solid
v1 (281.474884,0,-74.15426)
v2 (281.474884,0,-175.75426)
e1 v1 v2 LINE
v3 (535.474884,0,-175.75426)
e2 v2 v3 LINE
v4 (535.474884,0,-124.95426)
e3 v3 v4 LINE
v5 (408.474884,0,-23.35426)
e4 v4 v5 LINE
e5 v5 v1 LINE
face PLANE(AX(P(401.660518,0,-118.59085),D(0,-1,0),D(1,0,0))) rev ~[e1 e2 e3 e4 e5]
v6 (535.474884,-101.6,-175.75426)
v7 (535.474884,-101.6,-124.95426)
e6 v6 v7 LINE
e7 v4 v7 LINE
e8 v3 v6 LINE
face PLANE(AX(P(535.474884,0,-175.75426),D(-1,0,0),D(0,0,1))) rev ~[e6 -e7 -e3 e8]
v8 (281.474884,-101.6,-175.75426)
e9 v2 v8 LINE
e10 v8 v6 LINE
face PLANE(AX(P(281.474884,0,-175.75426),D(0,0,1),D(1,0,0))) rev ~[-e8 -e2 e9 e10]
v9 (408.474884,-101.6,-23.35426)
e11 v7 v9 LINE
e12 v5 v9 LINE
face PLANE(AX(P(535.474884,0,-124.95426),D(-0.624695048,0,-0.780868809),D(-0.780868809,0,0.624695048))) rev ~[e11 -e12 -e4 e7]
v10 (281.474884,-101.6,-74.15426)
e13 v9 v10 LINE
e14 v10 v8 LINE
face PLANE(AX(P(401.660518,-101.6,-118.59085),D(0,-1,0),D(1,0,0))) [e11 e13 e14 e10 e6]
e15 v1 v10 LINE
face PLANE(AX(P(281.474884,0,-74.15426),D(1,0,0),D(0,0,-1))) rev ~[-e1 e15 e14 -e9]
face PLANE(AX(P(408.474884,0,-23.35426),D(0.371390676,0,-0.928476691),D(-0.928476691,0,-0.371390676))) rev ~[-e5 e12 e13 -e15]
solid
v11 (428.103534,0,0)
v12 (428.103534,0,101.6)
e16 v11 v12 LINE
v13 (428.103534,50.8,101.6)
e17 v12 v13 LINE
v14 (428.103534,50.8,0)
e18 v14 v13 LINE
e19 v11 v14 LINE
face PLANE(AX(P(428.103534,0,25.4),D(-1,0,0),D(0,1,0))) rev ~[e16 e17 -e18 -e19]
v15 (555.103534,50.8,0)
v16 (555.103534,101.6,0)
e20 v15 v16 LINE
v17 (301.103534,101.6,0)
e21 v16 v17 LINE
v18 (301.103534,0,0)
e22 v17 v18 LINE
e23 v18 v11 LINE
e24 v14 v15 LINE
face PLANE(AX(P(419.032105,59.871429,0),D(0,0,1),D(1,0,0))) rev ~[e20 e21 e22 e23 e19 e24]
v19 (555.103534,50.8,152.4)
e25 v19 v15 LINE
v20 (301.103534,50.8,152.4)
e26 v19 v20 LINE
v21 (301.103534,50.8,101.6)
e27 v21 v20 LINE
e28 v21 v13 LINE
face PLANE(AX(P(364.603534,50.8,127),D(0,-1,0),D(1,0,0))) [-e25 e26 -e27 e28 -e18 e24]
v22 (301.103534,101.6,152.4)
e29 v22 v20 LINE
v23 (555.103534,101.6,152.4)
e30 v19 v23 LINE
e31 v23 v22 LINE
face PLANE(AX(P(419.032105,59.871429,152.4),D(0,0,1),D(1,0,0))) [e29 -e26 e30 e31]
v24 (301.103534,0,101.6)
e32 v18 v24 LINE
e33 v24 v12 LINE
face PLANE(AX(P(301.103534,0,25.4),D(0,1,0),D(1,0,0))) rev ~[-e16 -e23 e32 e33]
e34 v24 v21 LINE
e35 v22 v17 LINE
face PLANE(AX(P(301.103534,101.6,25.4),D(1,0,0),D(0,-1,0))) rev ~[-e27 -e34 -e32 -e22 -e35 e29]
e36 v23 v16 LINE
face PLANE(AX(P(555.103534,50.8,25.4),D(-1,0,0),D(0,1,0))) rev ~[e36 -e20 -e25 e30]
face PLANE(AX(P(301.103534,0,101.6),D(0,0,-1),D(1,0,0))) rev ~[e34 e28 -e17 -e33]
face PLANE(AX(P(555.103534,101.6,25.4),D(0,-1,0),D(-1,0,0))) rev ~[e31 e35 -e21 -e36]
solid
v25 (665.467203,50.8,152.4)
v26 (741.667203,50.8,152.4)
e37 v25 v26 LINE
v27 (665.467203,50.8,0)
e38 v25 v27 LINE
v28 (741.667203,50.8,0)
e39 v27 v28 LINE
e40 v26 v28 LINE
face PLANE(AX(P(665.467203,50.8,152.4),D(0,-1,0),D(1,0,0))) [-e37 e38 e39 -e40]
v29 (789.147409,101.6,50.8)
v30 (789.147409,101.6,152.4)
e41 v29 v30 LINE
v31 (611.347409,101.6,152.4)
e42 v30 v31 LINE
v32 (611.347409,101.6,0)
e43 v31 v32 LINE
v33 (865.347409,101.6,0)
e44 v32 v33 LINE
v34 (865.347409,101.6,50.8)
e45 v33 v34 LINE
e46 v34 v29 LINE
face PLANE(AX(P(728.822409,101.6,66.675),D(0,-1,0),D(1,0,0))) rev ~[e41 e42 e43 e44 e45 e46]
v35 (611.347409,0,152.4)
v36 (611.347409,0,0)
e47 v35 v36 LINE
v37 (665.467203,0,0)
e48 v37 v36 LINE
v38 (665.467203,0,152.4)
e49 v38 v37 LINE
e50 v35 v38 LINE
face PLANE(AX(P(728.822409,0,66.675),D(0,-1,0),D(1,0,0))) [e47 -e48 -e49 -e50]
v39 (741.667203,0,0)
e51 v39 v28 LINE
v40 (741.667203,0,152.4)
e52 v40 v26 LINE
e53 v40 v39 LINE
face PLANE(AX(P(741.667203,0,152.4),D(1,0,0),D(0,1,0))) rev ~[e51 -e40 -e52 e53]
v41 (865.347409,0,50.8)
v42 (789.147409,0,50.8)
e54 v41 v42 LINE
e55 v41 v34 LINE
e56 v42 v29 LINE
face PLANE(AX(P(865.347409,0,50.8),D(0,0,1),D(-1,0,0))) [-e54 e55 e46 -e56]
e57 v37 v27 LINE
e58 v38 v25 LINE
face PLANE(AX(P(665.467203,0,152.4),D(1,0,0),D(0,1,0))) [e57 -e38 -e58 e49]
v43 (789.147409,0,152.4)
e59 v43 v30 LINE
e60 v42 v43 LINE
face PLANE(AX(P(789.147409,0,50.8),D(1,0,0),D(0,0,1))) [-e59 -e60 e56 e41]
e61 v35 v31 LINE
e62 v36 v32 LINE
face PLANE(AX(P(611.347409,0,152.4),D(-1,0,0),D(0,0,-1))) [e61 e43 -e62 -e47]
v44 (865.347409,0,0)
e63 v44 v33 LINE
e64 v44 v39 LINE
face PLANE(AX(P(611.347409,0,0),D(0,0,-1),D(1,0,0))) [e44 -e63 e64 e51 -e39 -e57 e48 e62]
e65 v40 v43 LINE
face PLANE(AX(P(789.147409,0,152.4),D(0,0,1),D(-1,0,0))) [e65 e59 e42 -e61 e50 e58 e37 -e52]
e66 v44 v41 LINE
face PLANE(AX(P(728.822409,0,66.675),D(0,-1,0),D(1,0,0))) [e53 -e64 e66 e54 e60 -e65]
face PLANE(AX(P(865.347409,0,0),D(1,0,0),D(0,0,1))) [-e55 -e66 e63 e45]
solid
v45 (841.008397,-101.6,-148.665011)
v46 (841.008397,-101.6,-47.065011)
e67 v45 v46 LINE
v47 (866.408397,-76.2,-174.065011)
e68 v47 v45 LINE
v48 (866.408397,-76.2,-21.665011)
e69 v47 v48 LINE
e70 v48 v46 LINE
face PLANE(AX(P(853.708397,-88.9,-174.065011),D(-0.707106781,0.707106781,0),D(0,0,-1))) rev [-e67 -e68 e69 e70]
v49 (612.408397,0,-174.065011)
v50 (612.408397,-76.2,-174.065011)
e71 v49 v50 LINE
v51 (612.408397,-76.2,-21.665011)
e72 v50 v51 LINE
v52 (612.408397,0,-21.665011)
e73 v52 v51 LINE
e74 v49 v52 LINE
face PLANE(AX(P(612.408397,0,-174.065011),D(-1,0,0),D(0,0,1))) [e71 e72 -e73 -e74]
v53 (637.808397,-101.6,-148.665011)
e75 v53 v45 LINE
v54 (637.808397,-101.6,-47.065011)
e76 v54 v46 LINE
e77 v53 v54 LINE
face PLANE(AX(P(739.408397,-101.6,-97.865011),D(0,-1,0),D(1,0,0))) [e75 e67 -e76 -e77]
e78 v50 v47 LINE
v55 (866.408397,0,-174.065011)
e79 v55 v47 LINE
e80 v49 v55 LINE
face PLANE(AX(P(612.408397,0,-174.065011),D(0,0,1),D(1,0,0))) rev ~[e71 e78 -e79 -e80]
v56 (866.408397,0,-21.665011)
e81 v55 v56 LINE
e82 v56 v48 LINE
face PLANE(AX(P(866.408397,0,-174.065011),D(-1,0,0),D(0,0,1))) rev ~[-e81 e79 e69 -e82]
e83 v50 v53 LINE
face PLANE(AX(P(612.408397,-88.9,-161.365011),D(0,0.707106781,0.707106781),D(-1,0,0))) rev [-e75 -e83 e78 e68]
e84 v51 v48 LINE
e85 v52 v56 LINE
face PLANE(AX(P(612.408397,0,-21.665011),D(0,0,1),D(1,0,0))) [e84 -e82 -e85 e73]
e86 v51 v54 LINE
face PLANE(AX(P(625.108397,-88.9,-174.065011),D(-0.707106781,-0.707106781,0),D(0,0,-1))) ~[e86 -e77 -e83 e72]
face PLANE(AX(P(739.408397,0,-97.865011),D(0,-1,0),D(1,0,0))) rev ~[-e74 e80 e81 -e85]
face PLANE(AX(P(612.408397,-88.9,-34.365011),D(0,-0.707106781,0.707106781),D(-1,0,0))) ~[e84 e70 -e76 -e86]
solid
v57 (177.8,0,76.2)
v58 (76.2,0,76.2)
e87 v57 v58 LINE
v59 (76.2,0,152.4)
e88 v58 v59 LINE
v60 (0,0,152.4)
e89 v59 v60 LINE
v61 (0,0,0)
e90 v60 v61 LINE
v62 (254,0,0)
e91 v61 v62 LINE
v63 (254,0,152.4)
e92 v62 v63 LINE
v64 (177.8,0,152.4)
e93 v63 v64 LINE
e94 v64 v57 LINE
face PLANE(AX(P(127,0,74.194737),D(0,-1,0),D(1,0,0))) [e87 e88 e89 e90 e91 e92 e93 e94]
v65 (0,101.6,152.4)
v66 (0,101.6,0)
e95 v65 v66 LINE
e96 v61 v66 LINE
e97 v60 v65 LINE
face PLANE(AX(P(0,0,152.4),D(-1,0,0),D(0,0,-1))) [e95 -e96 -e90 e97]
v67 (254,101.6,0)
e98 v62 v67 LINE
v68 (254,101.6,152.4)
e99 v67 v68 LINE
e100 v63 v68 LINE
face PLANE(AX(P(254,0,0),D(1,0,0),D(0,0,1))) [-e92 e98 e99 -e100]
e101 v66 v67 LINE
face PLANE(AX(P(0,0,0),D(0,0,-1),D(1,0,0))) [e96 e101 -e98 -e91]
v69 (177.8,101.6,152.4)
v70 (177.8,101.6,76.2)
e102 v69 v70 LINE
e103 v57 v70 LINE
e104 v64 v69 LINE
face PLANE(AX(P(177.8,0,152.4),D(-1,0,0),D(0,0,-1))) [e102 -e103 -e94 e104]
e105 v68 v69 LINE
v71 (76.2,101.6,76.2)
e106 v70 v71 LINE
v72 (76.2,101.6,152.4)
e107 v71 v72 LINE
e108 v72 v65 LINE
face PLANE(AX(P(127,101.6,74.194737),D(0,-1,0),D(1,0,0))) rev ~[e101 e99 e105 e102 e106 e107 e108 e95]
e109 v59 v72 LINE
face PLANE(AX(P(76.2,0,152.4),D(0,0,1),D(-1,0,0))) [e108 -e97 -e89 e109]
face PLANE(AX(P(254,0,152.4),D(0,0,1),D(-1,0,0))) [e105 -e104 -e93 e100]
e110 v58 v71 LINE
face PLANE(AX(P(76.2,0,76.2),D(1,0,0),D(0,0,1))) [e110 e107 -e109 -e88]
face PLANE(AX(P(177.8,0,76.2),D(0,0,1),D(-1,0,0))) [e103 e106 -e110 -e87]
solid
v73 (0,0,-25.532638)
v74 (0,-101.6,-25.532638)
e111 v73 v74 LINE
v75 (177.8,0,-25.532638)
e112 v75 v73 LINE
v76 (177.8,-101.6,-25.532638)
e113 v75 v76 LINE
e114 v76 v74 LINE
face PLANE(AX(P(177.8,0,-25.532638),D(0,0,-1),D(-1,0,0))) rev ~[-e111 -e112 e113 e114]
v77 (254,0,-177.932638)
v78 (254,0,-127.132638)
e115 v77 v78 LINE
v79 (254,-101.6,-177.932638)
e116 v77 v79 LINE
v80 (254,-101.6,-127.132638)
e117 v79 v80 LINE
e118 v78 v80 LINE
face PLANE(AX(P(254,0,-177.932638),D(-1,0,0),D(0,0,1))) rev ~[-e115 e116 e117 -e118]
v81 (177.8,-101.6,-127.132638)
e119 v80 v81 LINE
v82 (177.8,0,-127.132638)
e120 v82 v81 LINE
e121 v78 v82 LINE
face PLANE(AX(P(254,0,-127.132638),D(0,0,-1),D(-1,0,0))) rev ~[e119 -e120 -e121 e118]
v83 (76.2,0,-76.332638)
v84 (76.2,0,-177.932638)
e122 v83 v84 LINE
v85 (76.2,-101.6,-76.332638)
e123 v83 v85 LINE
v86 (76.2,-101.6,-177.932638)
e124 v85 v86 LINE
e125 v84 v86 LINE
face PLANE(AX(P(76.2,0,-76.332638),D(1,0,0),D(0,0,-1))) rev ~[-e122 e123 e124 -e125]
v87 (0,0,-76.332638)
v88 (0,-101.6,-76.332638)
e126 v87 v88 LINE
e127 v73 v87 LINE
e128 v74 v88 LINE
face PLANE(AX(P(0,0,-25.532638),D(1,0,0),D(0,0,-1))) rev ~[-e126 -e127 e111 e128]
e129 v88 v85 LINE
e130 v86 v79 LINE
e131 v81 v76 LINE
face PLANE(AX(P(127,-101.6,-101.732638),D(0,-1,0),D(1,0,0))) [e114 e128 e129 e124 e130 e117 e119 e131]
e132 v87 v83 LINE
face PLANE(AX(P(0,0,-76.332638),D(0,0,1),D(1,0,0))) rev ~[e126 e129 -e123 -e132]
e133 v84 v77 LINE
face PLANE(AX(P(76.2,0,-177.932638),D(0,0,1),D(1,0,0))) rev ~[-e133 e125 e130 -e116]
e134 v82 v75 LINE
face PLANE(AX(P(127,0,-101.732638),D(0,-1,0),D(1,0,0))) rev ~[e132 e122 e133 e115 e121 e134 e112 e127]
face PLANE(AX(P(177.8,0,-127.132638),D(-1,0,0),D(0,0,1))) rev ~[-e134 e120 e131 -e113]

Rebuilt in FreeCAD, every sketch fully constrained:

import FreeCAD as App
import Part
import Sketcher
Q = App.Units.Quantity


def edges_at(feature, points):
    """Names of the edges that pass closest to the given points."""
    edges = feature.Shape.Edges
    near = lambda p: min(range(len(edges)), key=lambda i: edges[i].distToShape(Part.Vertex(*p))[0])
    return sorted({f"Edge{near(p) + 1}" for p in points})


def add_polygon(sketch, points):
    """Adds a closed chain of lines whose ends are joined by coincident constraints."""
    first, n = sketch.GeometryCount, len(points)
    for a, b in zip(points, points[1:] + points[:1]):
        sketch.addGeometry(Part.LineSegment(App.Vector(*a, 0), App.Vector(*b, 0)), False)
    for i in range(n):
        sketch.addConstraint(Sketcher.Constraint("Coincident", first + i, 2, first + (i + 1) % n, 1))

doc = App.newDocument("Part")
body = doc.addObject("PartDesign::Body", "Body")

# Sketch on XZ plane
sketch1 = body.newObject("Sketcher::SketchObject", "Sketch")
sketch1.AttachmentSupport = (doc.getObject("XZ_Plane"), [""])
sketch1.MapMode = "FlatFace"
add_polygon(sketch1, [(0, 152), (0, 0), (254, 0), (254, 152), (178, 152), (178, 76), (76, 76), (76, 152)])  # lines 0-7
sketch1.addConstraint(Sketcher.Constraint("Vertical", 0))
sketch1.addConstraint(Sketcher.Constraint("Horizontal", 1))
sketch1.addConstraint(Sketcher.Constraint("Vertical", 2))
sketch1.addConstraint(Sketcher.Constraint("Horizontal", 3))
sketch1.addConstraint(Sketcher.Constraint("Vertical", 4))
sketch1.addConstraint(Sketcher.Constraint("Horizontal", 5))
sketch1.addConstraint(Sketcher.Constraint("Vertical", 6))
sketch1.addConstraint(Sketcher.Constraint("Horizontal", 7))
sketch1.addConstraint(Sketcher.Constraint("Coincident", 0, 2, -1, 1))
sketch1.addConstraint(Sketcher.Constraint("Horizontal", 3, 2, 6, 2))
sketch1.addConstraint(Sketcher.Constraint("Equal", 3, 7))
sketch1.addConstraint(Sketcher.Constraint("Equal", 7, 4))
sketch1.addConstraint(Sketcher.Constraint("DistanceX", 1, 1, 1, 2, Q("10 in")))
sketch1.addConstraint(Sketcher.Constraint("DistanceX", 3, 2, 3, 1, Q("3 in")))
sketch1.addConstraint(Sketcher.Constraint("DistanceY", 0, 2, 0, 1, Q("6 in")))
pad1 = body.newObject("PartDesign::Pad", "Pad")
pad1.Profile = sketch1
pad1.Length = Q("4 in")
pad1.Reversed = True
body2 = doc.addObject("PartDesign::Body", "Body001")

# Sketch on XY plane
sketch2 = body2.newObject("Sketcher::SketchObject", "Sketch001")
sketch2.AttachmentSupport = (doc.getObject("XY_Plane001"), [""])
sketch2.MapMode = "FlatFace"
add_polygon(sketch2, [(301, 102), (301, 0), (428, 0), (428, 51), (555, 51), (555, 102)])  # lines 0-5
sketch2.addConstraint(Sketcher.Constraint("Vertical", 0))
sketch2.addConstraint(Sketcher.Constraint("Horizontal", 1))
sketch2.addConstraint(Sketcher.Constraint("Vertical", 2))
sketch2.addConstraint(Sketcher.Constraint("Horizontal", 3))
sketch2.addConstraint(Sketcher.Constraint("Vertical", 4))
sketch2.addConstraint(Sketcher.Constraint("Horizontal", 5))
sketch2.addConstraint(Sketcher.Constraint("PointOnObject", 0, 2, -1))
sketch2.addConstraint(Sketcher.Constraint("Equal", 1, 3))
sketch2.addConstraint(Sketcher.Constraint("Equal", 2, 4))
sketch2.addConstraint(Sketcher.Constraint("DistanceX", 1, 1, 1, 2, Q("5 in")))
sketch2.addConstraint(Sketcher.Constraint("DistanceY", 0, 2, 0, 1, Q("4 in")))
sketch2.addConstraint(Sketcher.Constraint("DistanceX", -1, 1, 0, 2, Q("301.103534 mm")))
pad2 = body2.newObject("PartDesign::Pad", "Pad001")
pad2.Profile = sketch2
pad2.Length = Q("1 in")

# Sketch on XY plane
sketch3 = body2.newObject("Sketcher::SketchObject", "Sketch002")
sketch3.AttachmentSupport = (doc.getObject("XY_Plane001"), [""])
sketch3.MapMode = "FlatFace"
sketch3.AttachmentOffset = App.Placement(App.Vector(0, 0, 1 * 25.4), App.Rotation())
add_polygon(sketch3, [(301, 102), (301, 0), (428, 0), (428, 51), (555, 51), (555, 102)])  # lines 0-5
sketch3.addConstraint(Sketcher.Constraint("Vertical", 0))
sketch3.addConstraint(Sketcher.Constraint("Horizontal", 1))
sketch3.addConstraint(Sketcher.Constraint("Vertical", 2))
sketch3.addConstraint(Sketcher.Constraint("Horizontal", 3))
sketch3.addConstraint(Sketcher.Constraint("Vertical", 4))
sketch3.addConstraint(Sketcher.Constraint("Horizontal", 5))
sketch3.addConstraint(Sketcher.Constraint("PointOnObject", 0, 2, -1))
sketch3.addConstraint(Sketcher.Constraint("Equal", 1, 3))
sketch3.addConstraint(Sketcher.Constraint("Equal", 2, 4))
sketch3.addConstraint(Sketcher.Constraint("DistanceX", 1, 1, 1, 2, Q("5 in")))
sketch3.addConstraint(Sketcher.Constraint("DistanceY", 0, 2, 0, 1, Q("4 in")))
sketch3.addConstraint(Sketcher.Constraint("DistanceX", -1, 1, 0, 2, Q("301.103534 mm")))
pad3 = body2.newObject("PartDesign::Pad", "Pad002")
pad3.Profile = sketch3
pad3.Length = Q("5 in")

# Sketch on XZ plane
sketch4 = body2.newObject("Sketcher::SketchObject", "Sketch003")
sketch4.AttachmentSupport = (doc.getObject("XZ_Plane001"), [""])
sketch4.MapMode = "FlatFace"
add_polygon(sketch4, [(301, 152), (301, 102), (428, 102), (428, 152)])  # lines 0-3
sketch4.addConstraint(Sketcher.Constraint("Vertical", 0))
sketch4.addConstraint(Sketcher.Constraint("Horizontal", 1))
sketch4.addConstraint(Sketcher.Constraint("Vertical", 2))
sketch4.addConstraint(Sketcher.Constraint("Horizontal", 3))
sketch4.addConstraint(Sketcher.Constraint("DistanceX", 1, 1, 1, 2, Q("5 in")))
sketch4.addConstraint(Sketcher.Constraint("DistanceY", 0, 2, 0, 1, Q("2 in")))
sketch4.addConstraint(Sketcher.Constraint("DistanceY", -1, 1, 0, 2, Q("4 in")))
sketch4.addConstraint(Sketcher.Constraint("DistanceX", -1, 1, 0, 2, Q("301.103534 mm")))
pocket1 = body2.newObject("PartDesign::Pocket", "Pocket")
pocket1.Profile = sketch4
pocket1.Length = Q("2 in")
body3 = doc.addObject("PartDesign::Body", "Body002")

# Sketch on XZ plane
sketch5 = body3.newObject("Sketcher::SketchObject", "Sketch004")
sketch5.AttachmentSupport = (doc.getObject("XZ_Plane002"), [""])
sketch5.MapMode = "FlatFace"
add_polygon(sketch5, [(611, 152), (611, 0), (865, 0), (865, 51), (789, 51), (789, 152)])  # lines 0-5
sketch5.addConstraint(Sketcher.Constraint("Vertical", 0))
sketch5.addConstraint(Sketcher.Constraint("Horizontal", 1))
sketch5.addConstraint(Sketcher.Constraint("Vertical", 2))
sketch5.addConstraint(Sketcher.Constraint("Horizontal", 3))
sketch5.addConstraint(Sketcher.Constraint("Vertical", 4))
sketch5.addConstraint(Sketcher.Constraint("Horizontal", 5))
sketch5.addConstraint(Sketcher.Constraint("PointOnObject", 0, 2, -1))
sketch5.addConstraint(Sketcher.Constraint("DistanceX", 1, 1, 1, 2, Q("10 in")))
sketch5.addConstraint(Sketcher.Constraint("DistanceX", 3, 2, 3, 1, Q("3 in")))
sketch5.addConstraint(Sketcher.Constraint("DistanceY", 0, 2, 0, 1, Q("6 in")))
sketch5.addConstraint(Sketcher.Constraint("DistanceY", 2, 1, 2, 2, Q("2 in")))
sketch5.addConstraint(Sketcher.Constraint("DistanceX", -1, 1, 0, 2, Q("611.347409 mm")))
pad4 = body3.newObject("PartDesign::Pad", "Pad003")
pad4.Profile = sketch5
pad4.Length = Q("4 in")
pad4.Reversed = True

# Sketch on XY plane
sketch6 = body3.newObject("Sketcher::SketchObject", "Sketch005")
sketch6.AttachmentSupport = (doc.getObject("XY_Plane002"), [""])
sketch6.MapMode = "FlatFace"
sketch6.AttachmentOffset = App.Placement(App.Vector(0, 0, 6 * 25.4), App.Rotation())
add_polygon(sketch6, [(662, 51), (662, 0), (738, 0), (738, 51)])  # lines 0-3
sketch6.addConstraint(Sketcher.Constraint("Vertical", 0))
sketch6.addConstraint(Sketcher.Constraint("Horizontal", 1))
sketch6.addConstraint(Sketcher.Constraint("Vertical", 2))
sketch6.addConstraint(Sketcher.Constraint("Horizontal", 3))
sketch6.addConstraint(Sketcher.Constraint("PointOnObject", 0, 2, -1))
sketch6.addConstraint(Sketcher.Constraint("DistanceX", 1, 1, 1, 2, Q("3 in")))
sketch6.addConstraint(Sketcher.Constraint("DistanceY", 0, 2, 0, 1, Q("2 in")))
sketch6.addConstraint(Sketcher.Constraint("DistanceX", -1, 1, 0, 2, Q("662.147409 mm")))
pad5 = body3.newObject("PartDesign::Pad", "Pad004")
pad5.Profile = sketch6
pad5.Length = Q("6 in")
pad5.Reversed = True

# Sketch on XY plane
sketch7 = body3.newObject("Sketcher::SketchObject", "Sketch006")
sketch7.AttachmentSupport = (doc.getObject("XY_Plane002"), [""])
sketch7.MapMode = "FlatFace"
sketch7.AttachmentOffset = App.Placement(App.Vector(0, 0, 6 * 25.4), App.Rotation())
add_polygon(sketch7, [(665, 51), (665, 0), (742, 0), (742, 51)])  # lines 0-3
sketch7.addConstraint(Sketcher.Constraint("Vertical", 0))
sketch7.addConstraint(Sketcher.Constraint("Horizontal", 1))
sketch7.addConstraint(Sketcher.Constraint("Vertical", 2))
sketch7.addConstraint(Sketcher.Constraint("Horizontal", 3))
sketch7.addConstraint(Sketcher.Constraint("PointOnObject", 0, 2, -1))
sketch7.addConstraint(Sketcher.Constraint("DistanceX", 1, 1, 1, 2, Q("3 in")))
sketch7.addConstraint(Sketcher.Constraint("DistanceY", 0, 2, 0, 1, Q("2 in")))
sketch7.addConstraint(Sketcher.Constraint("DistanceX", -1, 1, 0, 2, Q("665.467203 mm")))
pocket2 = body3.newObject("PartDesign::Pocket", "Pocket001")
pocket2.Profile = sketch7
pocket2.Length = Q("6 in")
body4 = doc.addObject("PartDesign::Body", "Body003")

# Sketch on XZ plane
sketch8 = body4.newObject("Sketcher::SketchObject", "Sketch007")
sketch8.AttachmentSupport = (doc.getObject("XZ_Plane003"), [""])
sketch8.MapMode = "FlatFace"
add_polygon(sketch8, [(178, -26), (0, -26), (0, -76), (76, -76), (76, -178), (254, -178), (254, -127), (178, -127)])  # lines 0-7
sketch8.addConstraint(Sketcher.Constraint("Horizontal", 0))
sketch8.addConstraint(Sketcher.Constraint("Vertical", 1))
sketch8.addConstraint(Sketcher.Constraint("Horizontal", 2))
sketch8.addConstraint(Sketcher.Constraint("Vertical", 3))
sketch8.addConstraint(Sketcher.Constraint("Horizontal", 4))
sketch8.addConstraint(Sketcher.Constraint("Vertical", 5))
sketch8.addConstraint(Sketcher.Constraint("Horizontal", 6))
sketch8.addConstraint(Sketcher.Constraint("Vertical", 7))
sketch8.addConstraint(Sketcher.Constraint("PointOnObject", 0, 2, -2))
sketch8.addConstraint(Sketcher.Constraint("Equal", 0, 4))
sketch8.addConstraint(Sketcher.Constraint("Equal", 1, 5))
sketch8.addConstraint(Sketcher.Constraint("DistanceX", 0, 2, 0, 1, Q("7 in")))
sketch8.addConstraint(Sketcher.Constraint("DistanceX", 2, 1, 2, 2, Q("3 in")))
sketch8.addConstraint(Sketcher.Constraint("DistanceY", 1, 2, 1, 1, Q("2 in")))
sketch8.addConstraint(Sketcher.Constraint("DistanceY", 3, 2, 3, 1, Q("4 in")))
sketch8.addConstraint(Sketcher.Constraint("DistanceY", 1, 2, -1, 1, Q("76.332638 mm")))
pad6 = body4.newObject("PartDesign::Pad", "Pad005")
pad6.Profile = sketch8
pad6.Length = Q("4 in")
body5 = doc.addObject("PartDesign::Body", "Body004")

# Sketch on XZ plane
sketch9 = body5.newObject("Sketcher::SketchObject", "Sketch008")
sketch9.AttachmentSupport = (doc.getObject("XZ_Plane004"), [""])
sketch9.MapMode = "FlatFace"
add_polygon(sketch9, [(281, -74), (281, -176), (535, -176), (535, -125), (408, -23)])  # lines 0-4
sketch9.addConstraint(Sketcher.Constraint("Vertical", 0))
sketch9.addConstraint(Sketcher.Constraint("Horizontal", 1))
sketch9.addConstraint(Sketcher.Constraint("Vertical", 2))
sketch9.addConstraint(Sketcher.Constraint("DistanceX", 1, 1, 1, 2, Q("10 in")))
sketch9.addConstraint(Sketcher.Constraint("DistanceY", 0, 2, 0, 1, Q("4 in")))
sketch9.addConstraint(Sketcher.Constraint("DistanceY", 2, 1, 2, 2, Q("2 in")))
sketch9.addConstraint(Sketcher.Constraint("DistanceX", 3, 2, 2, 2, Q("5 in")))
sketch9.addConstraint(Sketcher.Constraint("DistanceY", 2, 2, 3, 2, Q("4 in")))
sketch9.addConstraint(Sketcher.Constraint("DistanceY", 0, 2, -1, 1, Q("175.75426 mm")))
sketch9.addConstraint(Sketcher.Constraint("DistanceX", -1, 1, 0, 2, Q("281.474884 mm")))
pad7 = body5.newObject("PartDesign::Pad", "Pad006")
pad7.Profile = sketch9
pad7.Length = Q("4 in")
body6 = doc.addObject("PartDesign::Body", "Body005")

# Sketch on XZ plane
sketch10 = body6.newObject("Sketcher::SketchObject", "Sketch009")
sketch10.AttachmentSupport = (doc.getObject("XZ_Plane005"), [""])
sketch10.MapMode = "FlatFace"
add_polygon(sketch10, [(612, -22), (612, -174), (866, -174), (866, -22)])  # lines 0-3
sketch10.addConstraint(Sketcher.Constraint("Vertical", 0))
sketch10.addConstraint(Sketcher.Constraint("Horizontal", 1))
sketch10.addConstraint(Sketcher.Constraint("Vertical", 2))
sketch10.addConstraint(Sketcher.Constraint("Horizontal", 3))
sketch10.addConstraint(Sketcher.Constraint("DistanceX", 1, 1, 1, 2, Q("10 in")))
sketch10.addConstraint(Sketcher.Constraint("DistanceY", 0, 2, 0, 1, Q("6 in")))
sketch10.addConstraint(Sketcher.Constraint("DistanceY", 0, 2, -1, 1, Q("174.065011 mm")))
sketch10.addConstraint(Sketcher.Constraint("DistanceX", -1, 1, 0, 2, Q("612.408397 mm")))
pad8 = body6.newObject("PartDesign::Pad", "Pad007")
pad8.Profile = sketch10
pad8.Length = Q("4 in")
doc.recompute()

chamfer = body6.newObject("PartDesign::Chamfer", "Chamfer")
chamfer.Base = (pad8, edges_at(pad8, [
    (866.408, -101.6, -97.865),
    (739.408, -101.6, -21.665),
    (612.408, -101.6, -97.865),
    (739.408, -101.6, -174.065),
]))
chamfer.Size = Q("1 in")

doc.recompute()
